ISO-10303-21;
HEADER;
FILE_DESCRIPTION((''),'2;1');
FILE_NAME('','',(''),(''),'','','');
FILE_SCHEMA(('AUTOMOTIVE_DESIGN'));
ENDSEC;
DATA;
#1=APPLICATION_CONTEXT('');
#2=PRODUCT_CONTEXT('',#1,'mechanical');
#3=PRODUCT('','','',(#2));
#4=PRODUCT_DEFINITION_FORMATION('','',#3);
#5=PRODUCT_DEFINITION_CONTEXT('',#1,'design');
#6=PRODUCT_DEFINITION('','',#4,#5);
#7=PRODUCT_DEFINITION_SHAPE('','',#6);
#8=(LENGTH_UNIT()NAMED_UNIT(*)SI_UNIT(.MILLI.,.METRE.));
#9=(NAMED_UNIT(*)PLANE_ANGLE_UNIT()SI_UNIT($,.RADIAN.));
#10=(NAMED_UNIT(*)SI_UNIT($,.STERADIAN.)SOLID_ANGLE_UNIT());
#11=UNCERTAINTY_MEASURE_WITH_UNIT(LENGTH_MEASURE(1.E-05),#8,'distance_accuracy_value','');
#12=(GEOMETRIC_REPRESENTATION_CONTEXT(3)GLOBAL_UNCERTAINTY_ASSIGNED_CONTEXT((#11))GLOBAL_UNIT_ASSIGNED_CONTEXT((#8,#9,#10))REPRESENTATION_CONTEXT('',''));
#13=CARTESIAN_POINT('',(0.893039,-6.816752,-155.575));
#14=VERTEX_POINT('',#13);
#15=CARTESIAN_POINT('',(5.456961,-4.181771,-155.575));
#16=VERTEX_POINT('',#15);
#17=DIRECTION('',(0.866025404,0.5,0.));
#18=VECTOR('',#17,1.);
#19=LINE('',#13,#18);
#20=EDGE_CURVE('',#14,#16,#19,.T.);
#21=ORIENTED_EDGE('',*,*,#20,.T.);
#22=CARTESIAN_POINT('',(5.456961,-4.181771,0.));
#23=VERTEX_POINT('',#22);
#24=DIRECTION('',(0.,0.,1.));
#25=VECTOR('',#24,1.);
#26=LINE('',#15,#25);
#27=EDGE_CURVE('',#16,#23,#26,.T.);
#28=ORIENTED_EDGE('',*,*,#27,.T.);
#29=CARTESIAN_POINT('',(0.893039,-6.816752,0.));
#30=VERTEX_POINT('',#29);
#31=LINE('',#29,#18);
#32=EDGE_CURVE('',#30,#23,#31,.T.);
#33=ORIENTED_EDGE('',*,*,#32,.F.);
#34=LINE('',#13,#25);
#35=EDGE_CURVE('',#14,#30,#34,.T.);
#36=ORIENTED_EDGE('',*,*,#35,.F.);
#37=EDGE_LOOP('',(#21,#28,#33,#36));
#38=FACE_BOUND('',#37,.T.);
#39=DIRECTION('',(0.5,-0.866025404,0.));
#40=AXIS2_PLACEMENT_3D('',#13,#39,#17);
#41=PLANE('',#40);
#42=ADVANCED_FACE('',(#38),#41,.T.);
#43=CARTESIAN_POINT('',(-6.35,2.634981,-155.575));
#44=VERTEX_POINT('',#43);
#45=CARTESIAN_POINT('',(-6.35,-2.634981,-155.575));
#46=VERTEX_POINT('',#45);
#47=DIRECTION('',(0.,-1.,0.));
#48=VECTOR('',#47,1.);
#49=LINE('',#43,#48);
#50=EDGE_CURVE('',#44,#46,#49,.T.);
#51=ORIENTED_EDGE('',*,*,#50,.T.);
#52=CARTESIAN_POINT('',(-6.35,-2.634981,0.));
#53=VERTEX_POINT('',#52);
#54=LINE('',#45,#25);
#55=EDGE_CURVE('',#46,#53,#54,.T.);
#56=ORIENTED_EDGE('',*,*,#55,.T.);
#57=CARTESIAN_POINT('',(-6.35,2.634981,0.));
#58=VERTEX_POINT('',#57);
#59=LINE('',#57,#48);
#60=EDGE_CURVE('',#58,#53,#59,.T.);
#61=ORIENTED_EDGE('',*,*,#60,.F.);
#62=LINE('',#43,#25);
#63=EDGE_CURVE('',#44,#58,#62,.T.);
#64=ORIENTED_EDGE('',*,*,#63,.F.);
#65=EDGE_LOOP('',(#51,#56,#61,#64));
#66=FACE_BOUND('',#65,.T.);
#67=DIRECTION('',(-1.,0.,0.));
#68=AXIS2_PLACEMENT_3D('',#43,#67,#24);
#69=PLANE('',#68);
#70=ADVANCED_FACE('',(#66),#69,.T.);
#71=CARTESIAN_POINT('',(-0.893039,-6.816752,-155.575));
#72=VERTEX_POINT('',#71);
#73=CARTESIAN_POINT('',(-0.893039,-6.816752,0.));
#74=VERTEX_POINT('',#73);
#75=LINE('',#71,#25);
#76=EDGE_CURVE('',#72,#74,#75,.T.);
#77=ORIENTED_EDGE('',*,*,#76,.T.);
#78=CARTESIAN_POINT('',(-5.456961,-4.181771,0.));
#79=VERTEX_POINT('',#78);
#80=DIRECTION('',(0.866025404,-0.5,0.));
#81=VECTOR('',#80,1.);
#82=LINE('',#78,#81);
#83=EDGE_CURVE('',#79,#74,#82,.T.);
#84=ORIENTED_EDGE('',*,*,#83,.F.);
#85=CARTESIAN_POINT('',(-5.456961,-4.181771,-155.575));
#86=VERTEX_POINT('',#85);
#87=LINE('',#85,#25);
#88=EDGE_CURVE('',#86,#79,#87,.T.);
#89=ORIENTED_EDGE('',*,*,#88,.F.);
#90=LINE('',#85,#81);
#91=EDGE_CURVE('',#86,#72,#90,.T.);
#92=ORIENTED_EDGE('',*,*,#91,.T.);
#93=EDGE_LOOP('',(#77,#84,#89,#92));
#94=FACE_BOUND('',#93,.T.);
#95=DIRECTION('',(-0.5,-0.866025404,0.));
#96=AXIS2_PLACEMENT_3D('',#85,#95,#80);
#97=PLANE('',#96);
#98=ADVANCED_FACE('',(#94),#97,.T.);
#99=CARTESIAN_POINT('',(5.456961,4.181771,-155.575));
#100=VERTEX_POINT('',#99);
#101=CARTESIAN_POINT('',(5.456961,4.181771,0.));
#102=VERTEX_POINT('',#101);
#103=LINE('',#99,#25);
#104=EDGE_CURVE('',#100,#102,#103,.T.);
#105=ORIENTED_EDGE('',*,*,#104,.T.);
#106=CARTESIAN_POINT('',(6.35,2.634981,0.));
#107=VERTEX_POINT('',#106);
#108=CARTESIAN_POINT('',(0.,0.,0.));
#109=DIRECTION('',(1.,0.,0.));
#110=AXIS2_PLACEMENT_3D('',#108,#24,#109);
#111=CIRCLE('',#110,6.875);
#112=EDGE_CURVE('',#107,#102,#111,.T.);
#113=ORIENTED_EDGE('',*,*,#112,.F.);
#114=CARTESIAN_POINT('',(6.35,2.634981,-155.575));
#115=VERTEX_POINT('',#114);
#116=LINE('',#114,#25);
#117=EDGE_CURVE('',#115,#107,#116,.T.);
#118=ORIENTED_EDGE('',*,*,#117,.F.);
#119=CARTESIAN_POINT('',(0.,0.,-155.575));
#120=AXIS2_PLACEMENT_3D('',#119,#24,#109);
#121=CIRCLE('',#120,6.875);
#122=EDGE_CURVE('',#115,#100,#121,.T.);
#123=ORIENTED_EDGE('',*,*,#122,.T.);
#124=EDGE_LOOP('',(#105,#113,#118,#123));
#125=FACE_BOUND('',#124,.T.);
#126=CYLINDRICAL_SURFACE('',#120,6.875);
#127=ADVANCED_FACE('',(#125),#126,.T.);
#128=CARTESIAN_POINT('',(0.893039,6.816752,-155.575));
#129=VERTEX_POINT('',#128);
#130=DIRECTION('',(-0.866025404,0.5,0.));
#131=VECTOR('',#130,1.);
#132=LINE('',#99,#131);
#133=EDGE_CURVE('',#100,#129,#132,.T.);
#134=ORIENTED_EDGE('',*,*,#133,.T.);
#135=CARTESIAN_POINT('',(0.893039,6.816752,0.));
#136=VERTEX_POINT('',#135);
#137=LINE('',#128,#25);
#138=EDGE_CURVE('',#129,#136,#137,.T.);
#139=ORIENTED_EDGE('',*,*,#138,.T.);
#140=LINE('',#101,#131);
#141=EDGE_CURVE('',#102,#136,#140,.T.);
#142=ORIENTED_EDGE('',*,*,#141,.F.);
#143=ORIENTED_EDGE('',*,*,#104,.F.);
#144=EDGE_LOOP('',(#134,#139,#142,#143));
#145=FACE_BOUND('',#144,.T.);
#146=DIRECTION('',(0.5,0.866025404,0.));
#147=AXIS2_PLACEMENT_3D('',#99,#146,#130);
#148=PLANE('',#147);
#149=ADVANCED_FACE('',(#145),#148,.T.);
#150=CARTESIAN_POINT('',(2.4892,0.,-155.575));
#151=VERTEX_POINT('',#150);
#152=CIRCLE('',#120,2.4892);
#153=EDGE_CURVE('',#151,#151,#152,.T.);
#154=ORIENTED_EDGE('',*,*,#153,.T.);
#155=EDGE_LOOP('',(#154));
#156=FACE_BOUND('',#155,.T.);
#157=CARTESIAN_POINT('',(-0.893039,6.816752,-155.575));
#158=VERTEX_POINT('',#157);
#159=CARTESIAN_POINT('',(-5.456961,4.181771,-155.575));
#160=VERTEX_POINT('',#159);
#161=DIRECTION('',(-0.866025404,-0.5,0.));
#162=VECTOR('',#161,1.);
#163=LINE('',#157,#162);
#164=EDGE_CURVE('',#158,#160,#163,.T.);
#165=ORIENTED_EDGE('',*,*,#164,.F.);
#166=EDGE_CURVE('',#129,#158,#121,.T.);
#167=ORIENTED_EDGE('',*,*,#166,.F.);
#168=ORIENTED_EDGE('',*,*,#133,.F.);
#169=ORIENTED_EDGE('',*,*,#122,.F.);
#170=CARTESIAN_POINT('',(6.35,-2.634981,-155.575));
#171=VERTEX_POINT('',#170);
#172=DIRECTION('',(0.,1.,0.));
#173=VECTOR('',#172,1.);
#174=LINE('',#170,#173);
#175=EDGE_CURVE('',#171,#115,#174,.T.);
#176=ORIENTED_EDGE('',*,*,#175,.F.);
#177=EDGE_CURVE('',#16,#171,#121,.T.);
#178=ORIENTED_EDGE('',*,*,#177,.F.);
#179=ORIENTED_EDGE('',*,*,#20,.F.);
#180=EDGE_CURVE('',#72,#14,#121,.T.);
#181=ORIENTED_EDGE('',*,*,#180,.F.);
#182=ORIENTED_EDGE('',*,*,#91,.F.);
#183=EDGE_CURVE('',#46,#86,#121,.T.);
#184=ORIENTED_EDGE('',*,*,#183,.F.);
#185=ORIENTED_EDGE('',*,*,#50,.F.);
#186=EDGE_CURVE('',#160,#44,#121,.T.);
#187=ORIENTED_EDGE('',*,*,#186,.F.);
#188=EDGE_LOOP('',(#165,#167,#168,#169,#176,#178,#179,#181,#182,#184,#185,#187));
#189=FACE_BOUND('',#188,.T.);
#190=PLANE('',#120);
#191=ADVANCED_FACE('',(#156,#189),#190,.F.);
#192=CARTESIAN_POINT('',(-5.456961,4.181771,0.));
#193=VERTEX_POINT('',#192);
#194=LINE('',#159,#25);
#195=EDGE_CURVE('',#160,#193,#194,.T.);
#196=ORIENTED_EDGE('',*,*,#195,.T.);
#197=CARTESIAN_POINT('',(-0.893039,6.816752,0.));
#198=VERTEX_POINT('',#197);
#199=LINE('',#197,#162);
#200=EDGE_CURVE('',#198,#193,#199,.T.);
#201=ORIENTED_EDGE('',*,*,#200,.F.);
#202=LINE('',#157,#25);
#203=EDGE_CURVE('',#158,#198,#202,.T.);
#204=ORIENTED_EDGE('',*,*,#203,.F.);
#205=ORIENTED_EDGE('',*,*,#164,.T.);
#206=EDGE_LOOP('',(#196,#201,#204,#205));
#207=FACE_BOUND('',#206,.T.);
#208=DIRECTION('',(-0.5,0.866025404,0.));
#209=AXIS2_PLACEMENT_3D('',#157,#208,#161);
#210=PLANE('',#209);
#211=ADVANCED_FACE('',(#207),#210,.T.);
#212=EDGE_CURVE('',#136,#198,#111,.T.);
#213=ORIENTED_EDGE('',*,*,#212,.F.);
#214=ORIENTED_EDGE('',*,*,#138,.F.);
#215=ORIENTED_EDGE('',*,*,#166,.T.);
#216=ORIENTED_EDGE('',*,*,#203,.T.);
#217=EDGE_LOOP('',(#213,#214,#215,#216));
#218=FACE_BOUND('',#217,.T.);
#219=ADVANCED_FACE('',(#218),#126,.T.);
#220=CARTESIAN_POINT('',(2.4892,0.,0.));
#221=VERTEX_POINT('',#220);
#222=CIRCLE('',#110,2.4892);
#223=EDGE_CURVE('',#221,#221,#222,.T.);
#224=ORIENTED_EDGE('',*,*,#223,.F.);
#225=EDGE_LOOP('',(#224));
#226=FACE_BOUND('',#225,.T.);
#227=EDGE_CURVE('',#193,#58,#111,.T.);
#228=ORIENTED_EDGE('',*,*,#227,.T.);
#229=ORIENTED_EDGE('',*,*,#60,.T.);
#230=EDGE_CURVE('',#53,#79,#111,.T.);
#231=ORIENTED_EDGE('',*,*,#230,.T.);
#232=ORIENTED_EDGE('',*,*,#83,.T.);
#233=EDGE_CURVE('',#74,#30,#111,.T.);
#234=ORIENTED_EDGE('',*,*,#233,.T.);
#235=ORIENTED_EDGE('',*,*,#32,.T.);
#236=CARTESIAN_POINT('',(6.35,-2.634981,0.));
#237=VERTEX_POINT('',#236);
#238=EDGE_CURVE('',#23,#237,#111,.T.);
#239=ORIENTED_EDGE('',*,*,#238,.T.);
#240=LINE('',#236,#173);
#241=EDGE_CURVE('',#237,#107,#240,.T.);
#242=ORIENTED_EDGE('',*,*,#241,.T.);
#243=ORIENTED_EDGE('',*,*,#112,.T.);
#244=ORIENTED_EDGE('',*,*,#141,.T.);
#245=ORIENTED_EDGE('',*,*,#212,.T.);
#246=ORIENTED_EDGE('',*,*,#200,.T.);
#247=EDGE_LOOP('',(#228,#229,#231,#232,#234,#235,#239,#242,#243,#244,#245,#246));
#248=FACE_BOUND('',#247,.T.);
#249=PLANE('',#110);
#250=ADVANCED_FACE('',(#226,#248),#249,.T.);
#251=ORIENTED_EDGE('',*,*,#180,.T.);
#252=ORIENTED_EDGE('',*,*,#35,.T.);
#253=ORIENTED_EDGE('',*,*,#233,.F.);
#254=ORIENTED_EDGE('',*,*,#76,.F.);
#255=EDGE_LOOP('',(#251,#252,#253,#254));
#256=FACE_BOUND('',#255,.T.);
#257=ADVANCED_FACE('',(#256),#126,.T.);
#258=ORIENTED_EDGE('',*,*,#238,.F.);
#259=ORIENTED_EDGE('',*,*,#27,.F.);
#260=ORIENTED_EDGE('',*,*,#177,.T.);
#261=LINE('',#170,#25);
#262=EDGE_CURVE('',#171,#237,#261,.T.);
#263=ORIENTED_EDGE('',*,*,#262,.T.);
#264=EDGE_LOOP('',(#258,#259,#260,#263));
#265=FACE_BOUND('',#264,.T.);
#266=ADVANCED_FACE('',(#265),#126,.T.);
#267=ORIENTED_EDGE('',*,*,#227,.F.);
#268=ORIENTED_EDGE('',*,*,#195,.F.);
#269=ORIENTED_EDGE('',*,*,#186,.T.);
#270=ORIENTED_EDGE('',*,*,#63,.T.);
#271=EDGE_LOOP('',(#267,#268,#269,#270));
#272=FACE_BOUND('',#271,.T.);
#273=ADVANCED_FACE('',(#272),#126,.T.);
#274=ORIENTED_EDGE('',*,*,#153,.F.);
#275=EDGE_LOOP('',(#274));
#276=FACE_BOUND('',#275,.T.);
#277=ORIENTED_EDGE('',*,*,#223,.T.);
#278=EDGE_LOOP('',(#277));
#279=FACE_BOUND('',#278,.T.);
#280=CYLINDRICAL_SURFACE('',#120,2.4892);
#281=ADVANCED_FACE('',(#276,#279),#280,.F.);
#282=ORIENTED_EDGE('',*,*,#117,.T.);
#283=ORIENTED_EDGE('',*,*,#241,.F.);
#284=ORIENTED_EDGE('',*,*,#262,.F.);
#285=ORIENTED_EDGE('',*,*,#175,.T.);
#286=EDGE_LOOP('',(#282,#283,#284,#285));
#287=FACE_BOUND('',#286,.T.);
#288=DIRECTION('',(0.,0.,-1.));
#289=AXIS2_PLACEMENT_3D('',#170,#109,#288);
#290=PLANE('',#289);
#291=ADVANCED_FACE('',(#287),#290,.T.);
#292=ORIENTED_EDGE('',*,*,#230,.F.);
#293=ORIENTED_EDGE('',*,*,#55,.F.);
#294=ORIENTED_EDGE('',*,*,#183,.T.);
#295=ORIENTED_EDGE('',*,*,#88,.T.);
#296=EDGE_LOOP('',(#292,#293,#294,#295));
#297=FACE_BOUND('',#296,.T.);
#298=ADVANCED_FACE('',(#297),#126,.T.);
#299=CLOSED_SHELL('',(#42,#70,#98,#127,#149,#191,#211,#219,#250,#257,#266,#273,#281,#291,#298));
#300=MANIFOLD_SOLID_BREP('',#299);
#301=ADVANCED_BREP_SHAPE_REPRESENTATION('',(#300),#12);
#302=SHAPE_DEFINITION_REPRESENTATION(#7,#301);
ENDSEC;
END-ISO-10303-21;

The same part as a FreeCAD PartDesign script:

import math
import FreeCAD as App
import Part
import Sketcher

V = App.Vector
Q = App.Units.Quantity

doc = App.newDocument("Part")
params = doc.addObject("Spreadsheet::Sheet", "Params")
for row, (alias, value) in enumerate([
    ("sketch1_diameter", "0.196 in"),
    ("pad1_length", "6.125 in"),
], start=1):
    params.set(f"A{row}", alias)
    params.set(f"B{row}", "=" + value)
    params.setAlias(f"B{row}", alias)

body = doc.addObject("PartDesign::Body", "Body")

# Sketch on XY plane
sketch1 = body.newObject("Sketcher::SketchObject", "Sketch")
sketch1.AttachmentSupport = (doc.getObject("XY_Plane"), [""])
sketch1.MapMode = "FlatFace"
sketch1.addGeometry([
    Part.LineSegment(V(-0.893039, 6.816752, 0), V(-5.456961, 4.181771, 0)),  # 0
    Part.ArcOfCircle(Part.Circle(V(0, 0, 0), V(0, 0, 1), 6.875), math.radians(142.53638), math.radians(157.46362)),  # 1
    Part.LineSegment(V(-6.35, 2.634981, 0), V(-6.35, -2.634981, 0)),  # 2
    Part.ArcOfCircle(Part.Circle(V(0, 0, 0), V(0, 0, 1), 6.875), math.radians(-157.46362), math.radians(-142.53638)),  # 3
    Part.LineSegment(V(-5.456961, -4.181771, 0), V(-0.893039, -6.816752, 0)),  # 4
    Part.ArcOfCircle(Part.Circle(V(0, 0, 0), V(0, 0, 1), 6.875), math.radians(-97.46362), math.radians(-82.53638)),  # 5
    Part.LineSegment(V(0.893039, -6.816752, 0), V(5.456961, -4.181771, 0)),  # 6
    Part.ArcOfCircle(Part.Circle(V(0, 0, 0), V(0, 0, 1), 6.875), math.radians(-37.46362), math.radians(-22.53638)),  # 7
    Part.LineSegment(V(6.35, -2.634981, 0), V(6.35, 2.634981, 0)),  # 8
    Part.ArcOfCircle(Part.Circle(V(0, 0, 0), V(0, 0, 1), 6.875), math.radians(22.53638), math.radians(37.46362)),  # 9
    Part.LineSegment(V(5.456961, 4.181771, 0), V(0.893039, 6.816752, 0)),  # 10
    Part.ArcOfCircle(Part.Circle(V(0, 0, 0), V(0, 0, 1), 6.875), math.radians(82.53638), math.radians(97.46362)),  # 11
    Part.Circle(V(0, 0, 0), V(0, 0, 1), 2.4892),  # 12
], False)
sketch1.addConstraint([
    Sketcher.Constraint("Coincident", 0, 2, 1, 1),
    Sketcher.Constraint("Coincident", 1, 2, 2, 1),
    Sketcher.Constraint("Coincident", 2, 2, 3, 1),
    Sketcher.Constraint("Coincident", 3, 2, 4, 1),
    Sketcher.Constraint("Coincident", 4, 2, 5, 1),
    Sketcher.Constraint("Coincident", 5, 2, 6, 1),
    Sketcher.Constraint("Coincident", 6, 2, 7, 1),
    Sketcher.Constraint("Coincident", 7, 2, 8, 1),
    Sketcher.Constraint("Coincident", 8, 2, 9, 1),
    Sketcher.Constraint("Coincident", 9, 2, 10, 1),
    Sketcher.Constraint("Coincident", 10, 2, 11, 1),
    Sketcher.Constraint("Coincident", 11, 2, 0, 1),
    Sketcher.Constraint("Vertical", 2),
    Sketcher.Constraint("Vertical", 8),
    Sketcher.Constraint("Coincident", 1, 3, -1, 1),
    Sketcher.Constraint("Coincident", 3, 3, -1, 1),
    Sketcher.Constraint("Coincident", 5, 3, -1, 1),
    Sketcher.Constraint("Coincident", 7, 3, -1, 1),
    Sketcher.Constraint("Coincident", 9, 3, -1, 1),
    Sketcher.Constraint("Coincident", 11, 3, -1, 1),
    Sketcher.Constraint("Coincident", 12, 3, -1, 1),
    Sketcher.Constraint("Equal", 1, 3),
    Sketcher.Constraint("Equal", 3, 5),
    Sketcher.Constraint("Equal", 5, 7),
    Sketcher.Constraint("Equal", 7, 9),
    Sketcher.Constraint("Equal", 9, 11),
    Sketcher.Constraint("Parallel", 0, 6),
    Sketcher.Constraint("Parallel", 4, 10),
    Sketcher.Constraint("Horizontal", 4, 2, 5, 2),
    Sketcher.Constraint("Horizontal", 3, 2, 6, 2),
    Sketcher.Constraint("Horizontal", 2, 2, 7, 2),
    Sketcher.Constraint("Horizontal", 0, 2, 9, 2),
    Sketcher.Constraint("Vertical", 0, 2, 3, 2),
    Sketcher.Constraint("Diameter", 12, Q("0.196 in")),
    Sketcher.Constraint("Angle", 0, Q("-150 deg")),
    Sketcher.Constraint("DistanceX", 1, 2, -1, 1, Q("0.25 in")),
    Sketcher.Constraint("Radius", 1, 6.875),
    Sketcher.Constraint("DistanceX", 3, 2, 5, 2, Q("0.25 in")),
])
sketch1.setExpression("Constraints[33]", "Params.sketch1_diameter")
pad1 = body.newObject("PartDesign::Pad", "Pad")
pad1.Profile = sketch1
pad1.setExpression("Length", "Params.pad1_length")
pad1.Reversed = True

doc.recompute()
